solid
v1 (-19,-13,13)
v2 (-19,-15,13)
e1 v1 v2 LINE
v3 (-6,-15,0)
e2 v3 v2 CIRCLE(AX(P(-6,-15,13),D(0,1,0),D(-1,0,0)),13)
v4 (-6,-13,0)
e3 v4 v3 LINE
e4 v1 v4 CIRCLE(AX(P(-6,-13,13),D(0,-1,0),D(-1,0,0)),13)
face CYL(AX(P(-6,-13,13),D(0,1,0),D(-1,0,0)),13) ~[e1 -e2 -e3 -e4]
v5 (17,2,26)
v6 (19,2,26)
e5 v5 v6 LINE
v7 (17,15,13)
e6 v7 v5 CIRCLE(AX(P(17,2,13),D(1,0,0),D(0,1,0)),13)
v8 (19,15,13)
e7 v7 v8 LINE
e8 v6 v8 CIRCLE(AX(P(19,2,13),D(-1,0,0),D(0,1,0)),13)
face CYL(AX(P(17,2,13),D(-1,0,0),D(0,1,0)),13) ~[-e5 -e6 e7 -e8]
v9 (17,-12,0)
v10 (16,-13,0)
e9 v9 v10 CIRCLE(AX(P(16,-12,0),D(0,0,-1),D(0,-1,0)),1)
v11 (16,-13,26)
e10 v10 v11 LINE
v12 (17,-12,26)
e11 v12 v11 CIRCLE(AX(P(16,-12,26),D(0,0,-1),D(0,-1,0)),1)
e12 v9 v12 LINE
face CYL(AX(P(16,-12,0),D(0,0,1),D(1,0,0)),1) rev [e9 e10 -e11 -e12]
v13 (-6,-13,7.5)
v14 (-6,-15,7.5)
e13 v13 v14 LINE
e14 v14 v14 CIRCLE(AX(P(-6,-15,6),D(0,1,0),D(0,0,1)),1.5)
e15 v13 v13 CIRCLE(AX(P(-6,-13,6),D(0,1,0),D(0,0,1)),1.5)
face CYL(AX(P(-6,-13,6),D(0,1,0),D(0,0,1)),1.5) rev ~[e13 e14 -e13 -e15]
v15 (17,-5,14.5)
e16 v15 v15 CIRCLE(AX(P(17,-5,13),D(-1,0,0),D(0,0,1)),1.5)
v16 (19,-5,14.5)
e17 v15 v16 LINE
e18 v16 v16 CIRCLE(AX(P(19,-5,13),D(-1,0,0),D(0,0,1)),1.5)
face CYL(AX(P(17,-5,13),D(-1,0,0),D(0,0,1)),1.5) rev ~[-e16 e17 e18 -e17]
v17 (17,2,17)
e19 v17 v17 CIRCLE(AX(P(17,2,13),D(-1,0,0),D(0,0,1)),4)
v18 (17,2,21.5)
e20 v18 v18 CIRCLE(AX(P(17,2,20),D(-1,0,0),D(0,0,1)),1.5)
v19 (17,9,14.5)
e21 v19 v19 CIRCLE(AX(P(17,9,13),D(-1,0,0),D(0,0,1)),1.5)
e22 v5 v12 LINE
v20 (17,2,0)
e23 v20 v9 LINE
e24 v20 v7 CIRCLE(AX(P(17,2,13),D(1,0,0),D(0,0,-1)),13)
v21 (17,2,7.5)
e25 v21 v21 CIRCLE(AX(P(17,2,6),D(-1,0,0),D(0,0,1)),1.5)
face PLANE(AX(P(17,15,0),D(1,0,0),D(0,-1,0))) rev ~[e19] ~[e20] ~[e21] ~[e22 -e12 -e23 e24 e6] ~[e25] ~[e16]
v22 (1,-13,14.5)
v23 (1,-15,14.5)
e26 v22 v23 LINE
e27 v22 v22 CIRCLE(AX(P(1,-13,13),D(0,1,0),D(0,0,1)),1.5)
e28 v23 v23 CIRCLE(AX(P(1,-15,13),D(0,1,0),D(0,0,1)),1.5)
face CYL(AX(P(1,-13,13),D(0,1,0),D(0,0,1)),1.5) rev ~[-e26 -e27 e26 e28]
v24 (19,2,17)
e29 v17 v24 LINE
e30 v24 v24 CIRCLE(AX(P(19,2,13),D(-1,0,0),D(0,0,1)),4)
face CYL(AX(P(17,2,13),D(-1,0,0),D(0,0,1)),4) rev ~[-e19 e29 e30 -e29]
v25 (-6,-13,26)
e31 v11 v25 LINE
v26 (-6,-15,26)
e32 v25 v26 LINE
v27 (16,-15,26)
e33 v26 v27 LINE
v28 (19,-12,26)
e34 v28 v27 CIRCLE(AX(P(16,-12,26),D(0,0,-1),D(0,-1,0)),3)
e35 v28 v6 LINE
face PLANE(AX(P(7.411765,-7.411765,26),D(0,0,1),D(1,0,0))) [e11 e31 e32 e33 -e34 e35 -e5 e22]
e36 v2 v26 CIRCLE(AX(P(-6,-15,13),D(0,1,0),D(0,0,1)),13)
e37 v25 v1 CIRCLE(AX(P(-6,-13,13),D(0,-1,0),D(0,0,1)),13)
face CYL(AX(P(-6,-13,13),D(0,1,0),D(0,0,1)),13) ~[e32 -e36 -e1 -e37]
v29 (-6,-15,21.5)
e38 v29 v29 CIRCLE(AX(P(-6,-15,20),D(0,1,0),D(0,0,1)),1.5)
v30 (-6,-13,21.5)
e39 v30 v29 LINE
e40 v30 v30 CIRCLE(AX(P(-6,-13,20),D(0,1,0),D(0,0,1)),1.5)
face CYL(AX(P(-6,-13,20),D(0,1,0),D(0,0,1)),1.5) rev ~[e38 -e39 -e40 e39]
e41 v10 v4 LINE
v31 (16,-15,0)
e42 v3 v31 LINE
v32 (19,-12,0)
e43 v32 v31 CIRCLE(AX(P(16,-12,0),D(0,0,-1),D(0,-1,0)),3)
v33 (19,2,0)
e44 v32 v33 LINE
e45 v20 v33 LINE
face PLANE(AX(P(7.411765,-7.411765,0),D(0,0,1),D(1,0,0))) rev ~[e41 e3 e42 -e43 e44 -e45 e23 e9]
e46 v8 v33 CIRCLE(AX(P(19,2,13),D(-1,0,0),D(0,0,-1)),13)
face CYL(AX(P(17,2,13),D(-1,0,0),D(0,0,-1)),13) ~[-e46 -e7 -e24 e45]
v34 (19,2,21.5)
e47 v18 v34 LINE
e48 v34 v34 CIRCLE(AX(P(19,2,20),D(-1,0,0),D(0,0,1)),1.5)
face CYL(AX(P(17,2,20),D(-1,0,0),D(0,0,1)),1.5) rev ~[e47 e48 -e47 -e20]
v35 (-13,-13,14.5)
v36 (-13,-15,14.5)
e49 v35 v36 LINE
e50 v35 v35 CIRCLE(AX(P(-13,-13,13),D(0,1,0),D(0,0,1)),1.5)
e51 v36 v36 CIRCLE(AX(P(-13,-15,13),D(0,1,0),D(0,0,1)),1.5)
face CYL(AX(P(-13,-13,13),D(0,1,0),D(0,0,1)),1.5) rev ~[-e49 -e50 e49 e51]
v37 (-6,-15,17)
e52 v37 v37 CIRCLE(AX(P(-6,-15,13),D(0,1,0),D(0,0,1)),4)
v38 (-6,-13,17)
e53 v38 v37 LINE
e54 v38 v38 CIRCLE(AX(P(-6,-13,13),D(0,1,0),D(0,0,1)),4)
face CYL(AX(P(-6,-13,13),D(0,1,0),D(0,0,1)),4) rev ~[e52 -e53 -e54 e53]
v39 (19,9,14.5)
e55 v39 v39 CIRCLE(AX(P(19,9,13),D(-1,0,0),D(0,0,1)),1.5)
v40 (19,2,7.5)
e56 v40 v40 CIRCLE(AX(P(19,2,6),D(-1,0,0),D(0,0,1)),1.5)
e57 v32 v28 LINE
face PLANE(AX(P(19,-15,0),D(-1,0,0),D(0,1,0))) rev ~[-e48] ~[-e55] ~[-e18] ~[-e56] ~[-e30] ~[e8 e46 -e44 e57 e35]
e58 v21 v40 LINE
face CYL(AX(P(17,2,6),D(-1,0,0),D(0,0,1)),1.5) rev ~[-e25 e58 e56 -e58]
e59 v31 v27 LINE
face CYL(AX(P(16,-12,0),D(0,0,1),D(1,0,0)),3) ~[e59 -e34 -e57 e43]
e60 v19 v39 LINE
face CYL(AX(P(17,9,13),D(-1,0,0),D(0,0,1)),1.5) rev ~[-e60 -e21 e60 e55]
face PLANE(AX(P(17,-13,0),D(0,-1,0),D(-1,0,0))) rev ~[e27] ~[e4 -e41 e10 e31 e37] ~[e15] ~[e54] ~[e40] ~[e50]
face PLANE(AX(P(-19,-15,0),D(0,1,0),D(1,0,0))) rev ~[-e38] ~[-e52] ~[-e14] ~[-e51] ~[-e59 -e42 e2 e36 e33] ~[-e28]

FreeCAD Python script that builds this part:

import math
import FreeCAD as App
import Part
import Sketcher

V = App.Vector
Q = App.Units.Quantity


def edges_at(feature, points):
    """Names of the edges that pass closest to the given points."""
    edges = feature.Shape.Edges
    near = lambda p: min(range(len(edges)), key=lambda i: edges[i].distToShape(Part.Vertex(*p))[0])
    return sorted({f"Edge{near(p) + 1}" for p in points})


def add_polygon(sketch, points):
    """Adds a closed chain of lines whose ends are joined by coincident constraints."""
    first, n = sketch.GeometryCount, len(points)
    for a, b in zip(points, points[1:] + points[:1]):
        sketch.addGeometry(Part.LineSegment(App.Vector(*a, 0), App.Vector(*b, 0)), False)
    for i in range(n):
        sketch.addConstraint(Sketcher.Constraint("Coincident", first + i, 2, first + (i + 1) % n, 1))

doc = App.newDocument("Part")
body = doc.addObject("PartDesign::Body", "Body")

sketch1 = doc.addObject("Sketcher::SketchObject", "Sketch")
body.addObject(sketch1)
sketch1.AttachmentSupport = (doc.XY_Plane, [""])
sketch1.MapMode = "FlatFace"
add_polygon(sketch1, [(-19, -15), (19, -15), (19, 15), (17, 15), (17, -13), (-19, -13)])
sketch1.addConstraint([
    Sketcher.Constraint("Horizontal", 0),
    Sketcher.Constraint("Vertical", 1),
    Sketcher.Constraint("Horizontal", 2),
    Sketcher.Constraint("Vertical", 3),
    Sketcher.Constraint("Horizontal", 4),
    Sketcher.Constraint("Vertical", 5),
    Sketcher.Constraint("Symmetric", 1, 2, 5, 2, -1, 1),
    Sketcher.Constraint("Equal", 2, 5),
    Sketcher.Constraint("DistanceX", 0, 1, 0, 2, Q("38 mm")),
    Sketcher.Constraint("DistanceX", 2, 2, 2, 1, Q("2 mm")),
    Sketcher.Constraint("DistanceY", 1, 1, 1, 2, Q("30 mm")),
])
pad1 = doc.addObject("PartDesign::Pad", "Pad")
body.addObject(pad1)
pad1.Profile = sketch1
pad1.Length = 26
doc.recompute()

fillet = doc.addObject("PartDesign::Fillet", "Fillet")
body.addObject(fillet)
fillet.Base = (pad1, edges_at(pad1, [(17, -13, 13)]))
fillet.Radius = 1
doc.recompute()

fillet2 = doc.addObject("PartDesign::Fillet", "Fillet001")
body.addObject(fillet2)
fillet2.Base = (fillet, edges_at(fillet, [(19, -15, 13)]))
fillet2.Radius = 3

sketch2 = doc.addObject("Sketcher::SketchObject", "Sketch001")
body.addObject(sketch2)
sketch2.AttachmentSupport = (doc.YZ_Plane, [""])
sketch2.MapMode = "FlatFace"
sketch2.AttachmentOffset = App.Placement(V(0, 0, 17), App.Rotation())
sketch2.addGeometry([
    Part.LineSegment(V(15, 26, 0), V(15, 13, 0)),
    Part.ArcOfCircle(Part.Circle(V(2, 13, 0), V(0, 0, 1), 13), math.radians(0), math.radians(90)),
    Part.LineSegment(V(2, 26, 0), V(15, 26, 0)),
    Part.LineSegment(V(15, 0, 0), V(2, 0, 0)),
    Part.ArcOfCircle(Part.Circle(V(2, 13, 0), V(0, 0, 1), 13), math.radians(-90), math.radians(0)),
    Part.LineSegment(V(15, 13, 0), V(15, 0, 0)),
    Part.Circle(V(2, 6, 0), V(0, 0, 1), 1.5),
    Part.Circle(V(9, 13, 0), V(0, 0, 1), 1.5),
    Part.Circle(V(-5, 13, 0), V(0, 0, 1), 1.5),
    Part.Circle(V(2, 20, 0), V(0, 0, 1), 1.5),
    Part.Circle(V(2, 13, 0), V(0, 0, 1), 4),
], False)
sketch2.addConstraint([
    Sketcher.Constraint("Tangent", 0, 2, 1, 1),
    Sketcher.Constraint("Tangent", 1, 2, 2, 1),
    Sketcher.Constraint("Coincident", 2, 2, 0, 1),
    Sketcher.Constraint("Tangent", 3, 2, 4, 1),
    Sketcher.Constraint("Tangent", 4, 2, 5, 1),
    Sketcher.Constraint("Coincident", 5, 2, 3, 1),
    Sketcher.Constraint("Vertical", 0),
    Sketcher.Constraint("Horizontal", 2),
    Sketcher.Constraint("Horizontal", 3),
    Sketcher.Constraint("Vertical", 5),
    Sketcher.Constraint("Coincident", 4, 3, 1, 3),
    Sketcher.Constraint("Coincident", 10, 3, 1, 3),
    Sketcher.Constraint("Equal", 1, 4),
    Sketcher.Constraint("Equal", 6, 7),
    Sketcher.Constraint("Equal", 7, 8),
    Sketcher.Constraint("Equal", 8, 9),
    Sketcher.Constraint("PointOnObject", 3, 2, -1),
    Sketcher.Constraint("Horizontal", 4, 3, 7, 3),
    Sketcher.Constraint("Horizontal", 7, 3, 8, 3),
    Sketcher.Constraint("Vertical", 4, 3, 6, 3),
    Sketcher.Constraint("Vertical", 6, 3, 9, 3),
    Sketcher.Constraint("Diameter", 6, Q("3 mm")),
    Sketcher.Constraint("Diameter", 10, Q("8 mm")),
    Sketcher.Constraint("Radius", 1, Q("13 mm")),
    Sketcher.Constraint("DistanceX", -1, 1, 1, 3, Q("2 mm")),
    Sketcher.Constraint("DistanceY", -1, 1, 6, 3, Q("6 mm")),
    Sketcher.Constraint("DistanceX", -1, 1, 7, 3, Q("9 mm")),
    Sketcher.Constraint("DistanceX", 8, 3, -1, 1, Q("5 mm")),
    Sketcher.Constraint("DistanceY", -1, 1, 9, 3, Q("20 mm")),
])
pocket1 = doc.addObject("PartDesign::Pocket", "Pocket")
body.addObject(pocket1)
pocket1.Profile = sketch2
pocket1.Length = 26
pocket1.Reversed = True

sketch3 = doc.addObject("Sketcher::SketchObject", "Sketch002")
body.addObject(sketch3)
sketch3.AttachmentSupport = (doc.XZ_Plane, [""])
sketch3.MapMode = "FlatFace"
sketch3.AttachmentOffset = App.Placement(V(0, 0, 13), App.Rotation())
sketch3.addGeometry([
    Part.ArcOfCircle(Part.Circle(V(-6, 13, 0), V(0, 0, 1), 13), math.radians(-180), math.radians(-90)),
    Part.LineSegment(V(-6, 0, 0), V(-19, 0, 0)),
    Part.LineSegment(V(-19, 0, 0), V(-19, 13, 0)),
    Part.Circle(V(-6, 6, 0), V(0, 0, 1), 1.5),
    Part.Circle(V(-6, 13, 0), V(0, 0, 1), 4),
    Part.Circle(V(1, 13, 0), V(0, 0, 1), 1.5),
    Part.Circle(V(-13, 13, 0), V(0, 0, 1), 1.5),
    Part.Circle(V(-6, 20, 0), V(0, 0, 1), 1.5),
    Part.ArcOfCircle(Part.Circle(V(-6, 13, 0), V(0, 0, 1), 13), math.radians(90), math.radians(180)),
    Part.LineSegment(V(-19, 13, 0), V(-19, 26, 0)),
    Part.LineSegment(V(-19, 26, 0), V(-6, 26, 0)),
], False)
sketch3.addConstraint([
    Sketcher.Constraint("Tangent", 0, 2, 1, 1),
    Sketcher.Constraint("Coincident", 1, 2, 2, 1),
    Sketcher.Constraint("Tangent", 2, 2, 0, 1),
    Sketcher.Constraint("Tangent", 8, 2, 9, 1),
    Sketcher.Constraint("Coincident", 9, 2, 10, 1),
    Sketcher.Constraint("Tangent", 10, 2, 8, 1),
    Sketcher.Constraint("Horizontal", 1),
    Sketcher.Constraint("Vertical", 2),
    Sketcher.Constraint("Vertical", 9),
    Sketcher.Constraint("Horizontal", 10),
    Sketcher.Constraint("Coincident", 4, 3, 0, 3),
    Sketcher.Constraint("Coincident", 8, 3, 0, 3),
    Sketcher.Constraint("Equal", 3, 5),
    Sketcher.Constraint("Equal", 5, 6),
    Sketcher.Constraint("Equal", 6, 7),
    Sketcher.Constraint("Equal", 0, 8),
    Sketcher.Constraint("PointOnObject", 0, 2, -1),
    Sketcher.Constraint("Horizontal", 4, 3, 5, 3),
    Sketcher.Constraint("Horizontal", 5, 3, 6, 3),
    Sketcher.Constraint("Vertical", 0, 3, 3, 3),
    Sketcher.Constraint("Vertical", 4, 3, 7, 3),
    Sketcher.Constraint("Diameter", 3, Q("3 mm")),
    Sketcher.Constraint("Diameter", 4, Q("8 mm")),
    Sketcher.Constraint("Radius", 0, Q("13 mm")),
    Sketcher.Constraint("DistanceX", 0, 3, -1, 1, Q("6 mm")),
    Sketcher.Constraint("DistanceY", -1, 1, 3, 3, Q("6 mm")),
    Sketcher.Constraint("DistanceX", -1, 1, 5, 3, Q("1 mm")),
    Sketcher.Constraint("DistanceX", 6, 3, -1, 1, Q("13 mm")),
    Sketcher.Constraint("DistanceY", -1, 1, 7, 3, Q("20 mm")),
])
pocket2 = doc.addObject("PartDesign::Pocket", "Pocket001")
body.addObject(pocket2)
pocket2.Profile = sketch3
pocket2.Length = 26
pocket2.Reversed = True

doc.recompute()
